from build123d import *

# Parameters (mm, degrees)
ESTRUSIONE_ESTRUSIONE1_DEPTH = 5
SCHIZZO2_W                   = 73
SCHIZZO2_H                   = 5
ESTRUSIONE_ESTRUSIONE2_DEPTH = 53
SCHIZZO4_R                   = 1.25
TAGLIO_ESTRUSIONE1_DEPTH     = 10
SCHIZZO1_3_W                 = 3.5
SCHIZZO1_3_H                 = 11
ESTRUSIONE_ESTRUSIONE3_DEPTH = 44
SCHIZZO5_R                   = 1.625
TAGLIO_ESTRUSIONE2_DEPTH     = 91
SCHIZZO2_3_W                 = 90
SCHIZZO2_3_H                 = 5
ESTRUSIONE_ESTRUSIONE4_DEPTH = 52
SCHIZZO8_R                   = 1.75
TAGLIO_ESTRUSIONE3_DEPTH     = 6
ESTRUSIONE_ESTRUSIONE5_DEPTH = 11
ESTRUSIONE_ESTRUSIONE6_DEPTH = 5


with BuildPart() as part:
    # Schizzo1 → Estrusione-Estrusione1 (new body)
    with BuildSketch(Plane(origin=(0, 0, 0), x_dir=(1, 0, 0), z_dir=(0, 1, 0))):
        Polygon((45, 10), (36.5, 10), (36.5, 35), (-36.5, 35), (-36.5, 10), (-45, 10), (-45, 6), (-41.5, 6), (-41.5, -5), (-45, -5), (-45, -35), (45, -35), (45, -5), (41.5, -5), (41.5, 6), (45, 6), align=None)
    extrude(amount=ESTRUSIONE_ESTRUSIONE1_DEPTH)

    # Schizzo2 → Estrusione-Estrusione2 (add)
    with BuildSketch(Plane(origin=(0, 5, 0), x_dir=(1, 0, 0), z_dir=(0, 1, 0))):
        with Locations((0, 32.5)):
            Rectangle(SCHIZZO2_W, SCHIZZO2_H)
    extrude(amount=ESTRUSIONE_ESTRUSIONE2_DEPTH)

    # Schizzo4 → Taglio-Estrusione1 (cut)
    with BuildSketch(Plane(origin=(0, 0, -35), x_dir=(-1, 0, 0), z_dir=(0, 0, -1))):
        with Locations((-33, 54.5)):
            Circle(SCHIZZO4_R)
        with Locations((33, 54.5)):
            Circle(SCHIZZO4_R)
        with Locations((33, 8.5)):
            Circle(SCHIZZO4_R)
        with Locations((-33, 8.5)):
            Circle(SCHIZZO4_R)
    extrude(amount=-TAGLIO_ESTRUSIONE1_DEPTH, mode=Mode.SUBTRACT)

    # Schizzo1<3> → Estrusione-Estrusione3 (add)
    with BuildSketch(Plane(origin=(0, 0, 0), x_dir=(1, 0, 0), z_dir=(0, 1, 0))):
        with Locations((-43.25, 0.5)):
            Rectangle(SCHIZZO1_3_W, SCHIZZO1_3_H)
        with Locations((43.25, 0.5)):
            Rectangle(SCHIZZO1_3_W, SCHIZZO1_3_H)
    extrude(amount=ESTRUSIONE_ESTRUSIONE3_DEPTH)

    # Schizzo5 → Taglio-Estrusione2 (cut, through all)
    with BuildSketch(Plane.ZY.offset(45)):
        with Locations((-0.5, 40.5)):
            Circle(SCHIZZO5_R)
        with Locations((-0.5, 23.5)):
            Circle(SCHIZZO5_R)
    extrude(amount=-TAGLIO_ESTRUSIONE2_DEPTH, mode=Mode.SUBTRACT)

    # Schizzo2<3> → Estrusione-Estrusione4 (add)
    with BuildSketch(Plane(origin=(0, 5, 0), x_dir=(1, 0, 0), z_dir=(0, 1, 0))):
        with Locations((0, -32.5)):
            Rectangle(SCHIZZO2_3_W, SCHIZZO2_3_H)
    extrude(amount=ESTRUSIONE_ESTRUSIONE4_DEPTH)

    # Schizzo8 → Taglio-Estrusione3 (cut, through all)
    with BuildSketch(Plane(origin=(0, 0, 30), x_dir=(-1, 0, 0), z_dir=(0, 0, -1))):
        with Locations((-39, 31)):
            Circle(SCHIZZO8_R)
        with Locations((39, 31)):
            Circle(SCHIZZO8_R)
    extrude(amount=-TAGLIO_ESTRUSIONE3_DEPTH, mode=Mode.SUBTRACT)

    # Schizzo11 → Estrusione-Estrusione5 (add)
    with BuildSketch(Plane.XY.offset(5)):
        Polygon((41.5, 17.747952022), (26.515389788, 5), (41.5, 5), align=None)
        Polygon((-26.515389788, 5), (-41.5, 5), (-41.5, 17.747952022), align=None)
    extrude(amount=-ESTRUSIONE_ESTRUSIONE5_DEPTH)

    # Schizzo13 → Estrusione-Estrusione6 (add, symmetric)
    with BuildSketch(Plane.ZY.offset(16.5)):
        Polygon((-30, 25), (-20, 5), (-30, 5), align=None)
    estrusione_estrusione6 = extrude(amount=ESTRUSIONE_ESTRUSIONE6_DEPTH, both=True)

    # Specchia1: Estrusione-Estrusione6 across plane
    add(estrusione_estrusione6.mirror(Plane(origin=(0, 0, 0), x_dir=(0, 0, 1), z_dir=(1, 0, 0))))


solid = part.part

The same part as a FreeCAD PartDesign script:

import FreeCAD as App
import Part
import Sketcher
Q = App.Units.Quantity


def add_polygon(sketch, points):
    """Adds a closed chain of lines whose ends are joined by coincident constraints."""
    first, n = sketch.GeometryCount, len(points)
    for a, b in zip(points, points[1:] + points[:1]):
        sketch.addGeometry(Part.LineSegment(App.Vector(*a, 0), App.Vector(*b, 0)), False)
    for i in range(n):
        sketch.addConstraint(Sketcher.Constraint("Coincident", first + i, 2, first + (i + 1) % n, 1))

doc = App.newDocument("Part")
body = doc.addObject("PartDesign::Body", "Body")

sketch1 = body.newObject("Sketcher::SketchObject", "Sketch")
sketch1.AttachmentSupport = (doc.getObject("XZ_Plane"), [""])
sketch1.MapMode = "FlatFace"
add_polygon(sketch1, [(45, -10), (36.5, -10), (36.5, -35), (-36.5, -35), (-36.5, -10), (-45, -10), (-45, -6), (-41.5, -6), (-41.5, 5), (-45, 5), (-45, 35), (45, 35), (45, 5), (41.5, 5), (41.5, -6), (45, -6)])
sketch1.addConstraint([
    Sketcher.Constraint("Horizontal", 0),
    Sketcher.Constraint("Vertical", 1),
    Sketcher.Constraint("Horizontal", 2),
    Sketcher.Constraint("Vertical", 3),
    Sketcher.Constraint("Horizontal", 4),
    Sketcher.Constraint("Vertical", 5),
    Sketcher.Constraint("Horizontal", 6),
    Sketcher.Constraint("Vertical", 7),
    Sketcher.Constraint("Horizontal", 8),
    Sketcher.Constraint("Vertical", 9),
    Sketcher.Constraint("Horizontal", 10),
    Sketcher.Constraint("Vertical", 11),
    Sketcher.Constraint("Horizontal", 12),
    Sketcher.Constraint("Vertical", 13),
    Sketcher.Constraint("Horizontal", 14),
    Sketcher.Constraint("Vertical", 15),
    Sketcher.Constraint("Symmetric", 0, 2, 3, 2, -2),
    Sketcher.Constraint("Symmetric", 8, 2, 11, 2, -2),
    Sketcher.Constraint("Symmetric", 6, 2, 13, 2, -2),
    Sketcher.Constraint("Vertical", 5, 2, 8, 2),
    Sketcher.Constraint("Vertical", 11, 2, 14, 2),
    Sketcher.Constraint("DistanceX", 2, 2, 2, 1, Q("73 mm")),
    Sketcher.Constraint("DistanceX", 10, 1, 10, 2, Q("90 mm")),
    Sketcher.Constraint("DistanceY", 1, 2, 1, 1, Q("25 mm")),
    Sketcher.Constraint("DistanceY", 5, 1, 5, 2, Q("4 mm")),
    Sketcher.Constraint("DistanceY", 7, 1, 7, 2, Q("11 mm")),
    Sketcher.Constraint("DistanceY", 9, 1, 9, 2, Q("30 mm")),
    Sketcher.Constraint("DistanceX", 6, 1, 6, 2, Q("3.5 mm")),
    Sketcher.Constraint("DistanceY", 0, 2, -1, 1, Q("10 mm")),
])
pad1 = body.newObject("PartDesign::Pad", "Pad")
pad1.Profile = sketch1
pad1.Length = 5
pad1.Reversed = True

sketch2 = body.newObject("Sketcher::SketchObject", "Sketch001")
sketch2.AttachmentSupport = (doc.getObject("XZ_Plane"), [""])
sketch2.MapMode = "FlatFace"
sketch2.AttachmentOffset = App.Placement(App.Vector(0, 0, -5), App.Rotation())
add_polygon(sketch2, [(-36, -35), (-36, -30), (36, -30), (36, -35)])
sketch2.addConstraint([
    Sketcher.Constraint("Vertical", 0),
    Sketcher.Constraint("Horizontal", 1),
    Sketcher.Constraint("Vertical", 2),
    Sketcher.Constraint("Horizontal", 3),
    Sketcher.Constraint("DistanceX", 1, 1, 1, 2, Q("73 mm")),
    Sketcher.Constraint("DistanceY", 0, 1, 0, 2, Q("5 mm")),
    Sketcher.Constraint("DistanceY", 0, 2, -1, 1, Q("30 mm")),
    Sketcher.Constraint("DistanceX", 0, 2, -1, 1, Q("36.5 mm")),
])
pad2 = body.newObject("PartDesign::Pad", "Pad001")
pad2.Profile = sketch2
pad2.Length = 53
pad2.Reversed = True

sketch3 = body.newObject("Sketcher::SketchObject", "Sketch002")
sketch3.AttachmentSupport = (doc.getObject("XY_Plane"), [""])
sketch3.MapMode = "FlatFace"
sketch3.AttachmentOffset = App.Placement(App.Vector(0, 0, -35), App.Rotation())
sketch3.addGeometry([
    Part.Circle(App.Vector(33, 54.5, 0), App.Vector(0, 0, 1), 1.2),
    Part.Circle(App.Vector(-33, 54.5, 0), App.Vector(0, 0, 1), 1.2),
    Part.Circle(App.Vector(-33, 8.5, 0), App.Vector(0, 0, 1), 1.2),
    Part.Circle(App.Vector(33, 8.5, 0), App.Vector(0, 0, 1), 1.2),
], False)
sketch3.addConstraint([
    Sketcher.Constraint("Equal", 0, 1),
    Sketcher.Constraint("Equal", 1, 2),
    Sketcher.Constraint("Equal", 2, 3),
    Sketcher.Constraint("Symmetric", 0, 3, 1, 3, -2),
    Sketcher.Constraint("Symmetric", 2, 3, 3, 3, -2),
    Sketcher.Constraint("Vertical", 1, 3, 2, 3),
    Sketcher.Constraint("Diameter", 0, Q("2.5 mm")),
    Sketcher.Constraint("DistanceX", -1, 1, 0, 3, Q("33 mm")),
    Sketcher.Constraint("DistanceY", 2, 3, 1, 3, Q("46 mm")),
    Sketcher.Constraint("DistanceY", -1, 1, 0, 3, Q("54.5 mm")),
])
pocket1 = body.newObject("PartDesign::Pocket", "Pocket")
pocket1.Profile = sketch3
pocket1.Length = 10
pocket1.Reversed = True

sketch4 = body.newObject("Sketcher::SketchObject", "Sketch003")
sketch4.AttachmentSupport = (doc.getObject("XZ_Plane"), [""])
sketch4.MapMode = "FlatFace"
add_polygon(sketch4, [(-45, -6), (-45, 5), (-41.5, 5), (-41.5, -6)])
add_polygon(sketch4, [(41.5, -6), (41.5, 5), (45, 5), (45, -6)])
sketch4.addConstraint([
    Sketcher.Constraint("Vertical", 0),
    Sketcher.Constraint("Horizontal", 1),
    Sketcher.Constraint("Vertical", 2),
    Sketcher.Constraint("Horizontal", 3),
    Sketcher.Constraint("Vertical", 4),
    Sketcher.Constraint("Horizontal", 5),
    Sketcher.Constraint("Vertical", 6),
    Sketcher.Constraint("Horizontal", 7),
    Sketcher.Constraint("Symmetric", 1, 2, 4, 2, -2),
    Sketcher.Constraint("Symmetric", 3, 2, 6, 2, -2),
    Sketcher.Constraint("DistanceY", 0, 1, 0, 2, Q("11 mm")),
    Sketcher.Constraint("DistanceX", 1, 1, 1, 2, Q("3.5 mm")),
    Sketcher.Constraint("DistanceX", 0, 2, -1, 1, Q("45 mm")),
    Sketcher.Constraint("DistanceY", -1, 1, 0, 2, Q("5 mm")),
])
pad3 = body.newObject("PartDesign::Pad", "Pad002")
pad3.Profile = sketch4
pad3.Length = 44
pad3.Reversed = True

sketch5 = body.newObject("Sketcher::SketchObject", "Sketch004")
sketch5.AttachmentSupport = (doc.getObject("YZ_Plane"), [""])
sketch5.MapMode = "FlatFace"
sketch5.AttachmentOffset = App.Placement(App.Vector(0, 0, -45), App.Rotation())
sketch5.addGeometry([
    Part.Circle(App.Vector(40.5, -0.5, 0), App.Vector(0, 0, 1), 1.6),
    Part.Circle(App.Vector(23.5, -0.5, 0), App.Vector(0, 0, 1), 1.6),
], False)
sketch5.addConstraint([
    Sketcher.Constraint("Equal", 0, 1),
    Sketcher.Constraint("Horizontal", 0, 3, 1, 3),
    Sketcher.Constraint("Diameter", 0, Q("3.25 mm")),
    Sketcher.Constraint("DistanceX", 1, 3, 0, 3, Q("17 mm")),
    Sketcher.Constraint("DistanceX", -1, 1, 0, 3, Q("40.5 mm")),
    Sketcher.Constraint("DistanceY", 0, 3, -1, 1, Q("0.5 mm")),
])
pocket2 = body.newObject("PartDesign::Pocket", "Pocket001")
pocket2.Profile = sketch5
pocket2.Type = "ThroughAll"
pocket2.Reversed = True

sketch6 = body.newObject("Sketcher::SketchObject", "Sketch005")
sketch6.AttachmentSupport = (doc.getObject("XZ_Plane"), [""])
sketch6.MapMode = "FlatFace"
sketch6.AttachmentOffset = App.Placement(App.Vector(0, 0, -5), App.Rotation())
add_polygon(sketch6, [(-45, 30), (-45, 35), (45, 35), (45, 30)])
sketch6.addConstraint([
    Sketcher.Constraint("Vertical", 0),
    Sketcher.Constraint("Horizontal", 1),
    Sketcher.Constraint("Vertical", 2),
    Sketcher.Constraint("Horizontal", 3),
    Sketcher.Constraint("DistanceX", 1, 1, 1, 2, Q("90 mm")),
    Sketcher.Constraint("DistanceY", 0, 1, 0, 2, Q("5 mm")),
    Sketcher.Constraint("DistanceX", 0, 2, -1, 1, Q("45 mm")),
    Sketcher.Constraint("DistanceY", -1, 1, 0, 2, Q("35 mm")),
])
pad4 = body.newObject("PartDesign::Pad", "Pad003")
pad4.Profile = sketch6
pad4.Length = 52
pad4.Reversed = True

sketch7 = body.newObject("Sketcher::SketchObject", "Sketch006")
sketch7.AttachmentSupport = (doc.getObject("XY_Plane"), [""])
sketch7.MapMode = "FlatFace"
sketch7.AttachmentOffset = App.Placement(App.Vector(0, 0, 30), App.Rotation())
sketch7.addGeometry([
    Part.Circle(App.Vector(39, 31, 0), App.Vector(0, 0, 1), 1.8),
    Part.Circle(App.Vector(-39, 31, 0), App.Vector(0, 0, 1), 1.8),
], False)
sketch7.addConstraint([
    Sketcher.Constraint("Equal", 0, 1),
    Sketcher.Constraint("Symmetric", 0, 3, 1, 3, -2),
    Sketcher.Constraint("Diameter", 0, Q("3.5 mm")),
    Sketcher.Constraint("DistanceX", -1, 1, 0, 3, Q("39 mm")),
    Sketcher.Constraint("DistanceY", -1, 1, 0, 3, Q("31 mm")),
])
pocket3 = body.newObject("PartDesign::Pocket", "Pocket002")
pocket3.Profile = sketch7
pocket3.Type = "ThroughAll"
pocket3.Reversed = True

sketch8 = body.newObject("Sketcher::SketchObject", "Sketch007")
sketch8.AttachmentSupport = (doc.getObject("XY_Plane"), [""])
sketch8.MapMode = "FlatFace"
sketch8.AttachmentOffset = App.Placement(App.Vector(0, 0, 5), App.Rotation())
add_polygon(sketch8, [(42, 18), (27, 5), (42, 5)])
add_polygon(sketch8, [(-42, 5), (-27, 5), (-42, 18)])
sketch8.addConstraint([
    Sketcher.Constraint("Horizontal", 1),
    Sketcher.Constraint("Vertical", 2),
    Sketcher.Constraint("Horizontal", 3),
    Sketcher.Constraint("Vertical", 5),
    Sketcher.Constraint("Symmetric", 0, 2, 3, 2, -2),
    Sketcher.Constraint("Symmetric", 2, 2, 4, 2, -2),
    Sketcher.Constraint("DistanceY", -1, 1, 0, 2, Q("5 mm")),
    Sketcher.Constraint("DistanceX", 4, 2, 2, 2, Q("83 mm")),
    Sketcher.Constraint("DistanceX", 1, 1, 1, 2, Q("14.98461 mm")),
    Sketcher.Constraint("DistanceY", 2, 1, 2, 2, Q("12.747952 mm")),
])
pad5 = body.newObject("PartDesign::Pad", "Pad004")
pad5.Profile = sketch8
pad5.Length = 11
pad5.Reversed = True

sketch9 = body.newObject("Sketcher::SketchObject", "Sketch008")
sketch9.AttachmentSupport = (doc.getObject("YZ_Plane"), [""])
sketch9.MapMode = "FlatFace"
sketch9.AttachmentOffset = App.Placement(App.Vector(0, 0, -16.5), App.Rotation())
add_polygon(sketch9, [(5, -20), (25, -30), (5, -30)])
sketch9.addConstraint([
    Sketcher.Constraint("Horizontal", 1),
    Sketcher.Constraint("Vertical", 2),
    Sketcher.Constraint("DistanceX", 1, 2, 1, 1, Q("20 mm")),
    Sketcher.Constraint("DistanceY", 2, 1, 2, 2, Q("10 mm")),
    Sketcher.Constraint("DistanceX", -1, 1, 0, 2, Q("25 mm")),
    Sketcher.Constraint("DistanceY", 0, 2, -1, 1, Q("30 mm")),
])
pad6 = body.newObject("PartDesign::Pad", "Pad005")
pad6.Profile = sketch9
pad6.Length = 10
pad6.Midplane = True
doc.recompute()

mirrored = body.newObject("PartDesign::Mirrored", "Mirrored")
mirrored.Originals = [pad6]
mirrored.MirrorPlane = (doc.getObject("YZ_Plane"), [""])
body.Tip = mirrored

doc.recompute()
